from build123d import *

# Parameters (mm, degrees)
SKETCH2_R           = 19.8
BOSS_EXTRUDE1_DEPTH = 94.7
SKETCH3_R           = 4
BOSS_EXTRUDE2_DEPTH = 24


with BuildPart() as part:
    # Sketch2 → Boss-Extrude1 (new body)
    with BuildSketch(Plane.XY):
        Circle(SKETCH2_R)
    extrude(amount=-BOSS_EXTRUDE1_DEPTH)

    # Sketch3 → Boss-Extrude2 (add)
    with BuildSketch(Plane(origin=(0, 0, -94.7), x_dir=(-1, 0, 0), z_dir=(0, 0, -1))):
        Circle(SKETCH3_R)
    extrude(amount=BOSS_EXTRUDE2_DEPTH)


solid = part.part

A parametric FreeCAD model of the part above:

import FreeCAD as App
import Part
import Sketcher

doc = App.newDocument("Part")
body = doc.addObject("PartDesign::Body", "Body")

sketch1 = body.newObject("Sketcher::SketchObject", "Sketch")
sketch1.AttachmentSupport = (doc.getObject("XY_Plane"), [""])
sketch1.MapMode = "FlatFace"
sketch1.addGeometry(Part.Circle(App.Vector(0, 0, 0), App.Vector(0, 0, 1), 20), False)
sketch1.addConstraint([
    Sketcher.Constraint("Coincident", 0, 3, -1, 1),
    Sketcher.Constraint("Diameter", 0, 39.6),
])
pad1 = body.newObject("PartDesign::Pad", "Pad")
pad1.Profile = sketch1
pad1.Length = 94.7
pad1.Reversed = True

sketch2 = body.newObject("Sketcher::SketchObject", "Sketch001")
sketch2.AttachmentSupport = (doc.getObject("XY_Plane"), [""])
sketch2.MapMode = "FlatFace"
sketch2.AttachmentOffset = App.Placement(App.Vector(0, 0, -94.7), App.Rotation())
sketch2.addGeometry(Part.Circle(App.Vector(0, 0, 0), App.Vector(0, 0, 1), 4), False)
sketch2.addConstraint([
    Sketcher.Constraint("Coincident", 0, 3, -1, 1),
    Sketcher.Constraint("Diameter", 0, 8.0),
])
pad2 = body.newObject("PartDesign::Pad", "Pad001")
pad2.Profile = sketch2
pad2.Length = 24
pad2.Reversed = True

doc.recompute()
